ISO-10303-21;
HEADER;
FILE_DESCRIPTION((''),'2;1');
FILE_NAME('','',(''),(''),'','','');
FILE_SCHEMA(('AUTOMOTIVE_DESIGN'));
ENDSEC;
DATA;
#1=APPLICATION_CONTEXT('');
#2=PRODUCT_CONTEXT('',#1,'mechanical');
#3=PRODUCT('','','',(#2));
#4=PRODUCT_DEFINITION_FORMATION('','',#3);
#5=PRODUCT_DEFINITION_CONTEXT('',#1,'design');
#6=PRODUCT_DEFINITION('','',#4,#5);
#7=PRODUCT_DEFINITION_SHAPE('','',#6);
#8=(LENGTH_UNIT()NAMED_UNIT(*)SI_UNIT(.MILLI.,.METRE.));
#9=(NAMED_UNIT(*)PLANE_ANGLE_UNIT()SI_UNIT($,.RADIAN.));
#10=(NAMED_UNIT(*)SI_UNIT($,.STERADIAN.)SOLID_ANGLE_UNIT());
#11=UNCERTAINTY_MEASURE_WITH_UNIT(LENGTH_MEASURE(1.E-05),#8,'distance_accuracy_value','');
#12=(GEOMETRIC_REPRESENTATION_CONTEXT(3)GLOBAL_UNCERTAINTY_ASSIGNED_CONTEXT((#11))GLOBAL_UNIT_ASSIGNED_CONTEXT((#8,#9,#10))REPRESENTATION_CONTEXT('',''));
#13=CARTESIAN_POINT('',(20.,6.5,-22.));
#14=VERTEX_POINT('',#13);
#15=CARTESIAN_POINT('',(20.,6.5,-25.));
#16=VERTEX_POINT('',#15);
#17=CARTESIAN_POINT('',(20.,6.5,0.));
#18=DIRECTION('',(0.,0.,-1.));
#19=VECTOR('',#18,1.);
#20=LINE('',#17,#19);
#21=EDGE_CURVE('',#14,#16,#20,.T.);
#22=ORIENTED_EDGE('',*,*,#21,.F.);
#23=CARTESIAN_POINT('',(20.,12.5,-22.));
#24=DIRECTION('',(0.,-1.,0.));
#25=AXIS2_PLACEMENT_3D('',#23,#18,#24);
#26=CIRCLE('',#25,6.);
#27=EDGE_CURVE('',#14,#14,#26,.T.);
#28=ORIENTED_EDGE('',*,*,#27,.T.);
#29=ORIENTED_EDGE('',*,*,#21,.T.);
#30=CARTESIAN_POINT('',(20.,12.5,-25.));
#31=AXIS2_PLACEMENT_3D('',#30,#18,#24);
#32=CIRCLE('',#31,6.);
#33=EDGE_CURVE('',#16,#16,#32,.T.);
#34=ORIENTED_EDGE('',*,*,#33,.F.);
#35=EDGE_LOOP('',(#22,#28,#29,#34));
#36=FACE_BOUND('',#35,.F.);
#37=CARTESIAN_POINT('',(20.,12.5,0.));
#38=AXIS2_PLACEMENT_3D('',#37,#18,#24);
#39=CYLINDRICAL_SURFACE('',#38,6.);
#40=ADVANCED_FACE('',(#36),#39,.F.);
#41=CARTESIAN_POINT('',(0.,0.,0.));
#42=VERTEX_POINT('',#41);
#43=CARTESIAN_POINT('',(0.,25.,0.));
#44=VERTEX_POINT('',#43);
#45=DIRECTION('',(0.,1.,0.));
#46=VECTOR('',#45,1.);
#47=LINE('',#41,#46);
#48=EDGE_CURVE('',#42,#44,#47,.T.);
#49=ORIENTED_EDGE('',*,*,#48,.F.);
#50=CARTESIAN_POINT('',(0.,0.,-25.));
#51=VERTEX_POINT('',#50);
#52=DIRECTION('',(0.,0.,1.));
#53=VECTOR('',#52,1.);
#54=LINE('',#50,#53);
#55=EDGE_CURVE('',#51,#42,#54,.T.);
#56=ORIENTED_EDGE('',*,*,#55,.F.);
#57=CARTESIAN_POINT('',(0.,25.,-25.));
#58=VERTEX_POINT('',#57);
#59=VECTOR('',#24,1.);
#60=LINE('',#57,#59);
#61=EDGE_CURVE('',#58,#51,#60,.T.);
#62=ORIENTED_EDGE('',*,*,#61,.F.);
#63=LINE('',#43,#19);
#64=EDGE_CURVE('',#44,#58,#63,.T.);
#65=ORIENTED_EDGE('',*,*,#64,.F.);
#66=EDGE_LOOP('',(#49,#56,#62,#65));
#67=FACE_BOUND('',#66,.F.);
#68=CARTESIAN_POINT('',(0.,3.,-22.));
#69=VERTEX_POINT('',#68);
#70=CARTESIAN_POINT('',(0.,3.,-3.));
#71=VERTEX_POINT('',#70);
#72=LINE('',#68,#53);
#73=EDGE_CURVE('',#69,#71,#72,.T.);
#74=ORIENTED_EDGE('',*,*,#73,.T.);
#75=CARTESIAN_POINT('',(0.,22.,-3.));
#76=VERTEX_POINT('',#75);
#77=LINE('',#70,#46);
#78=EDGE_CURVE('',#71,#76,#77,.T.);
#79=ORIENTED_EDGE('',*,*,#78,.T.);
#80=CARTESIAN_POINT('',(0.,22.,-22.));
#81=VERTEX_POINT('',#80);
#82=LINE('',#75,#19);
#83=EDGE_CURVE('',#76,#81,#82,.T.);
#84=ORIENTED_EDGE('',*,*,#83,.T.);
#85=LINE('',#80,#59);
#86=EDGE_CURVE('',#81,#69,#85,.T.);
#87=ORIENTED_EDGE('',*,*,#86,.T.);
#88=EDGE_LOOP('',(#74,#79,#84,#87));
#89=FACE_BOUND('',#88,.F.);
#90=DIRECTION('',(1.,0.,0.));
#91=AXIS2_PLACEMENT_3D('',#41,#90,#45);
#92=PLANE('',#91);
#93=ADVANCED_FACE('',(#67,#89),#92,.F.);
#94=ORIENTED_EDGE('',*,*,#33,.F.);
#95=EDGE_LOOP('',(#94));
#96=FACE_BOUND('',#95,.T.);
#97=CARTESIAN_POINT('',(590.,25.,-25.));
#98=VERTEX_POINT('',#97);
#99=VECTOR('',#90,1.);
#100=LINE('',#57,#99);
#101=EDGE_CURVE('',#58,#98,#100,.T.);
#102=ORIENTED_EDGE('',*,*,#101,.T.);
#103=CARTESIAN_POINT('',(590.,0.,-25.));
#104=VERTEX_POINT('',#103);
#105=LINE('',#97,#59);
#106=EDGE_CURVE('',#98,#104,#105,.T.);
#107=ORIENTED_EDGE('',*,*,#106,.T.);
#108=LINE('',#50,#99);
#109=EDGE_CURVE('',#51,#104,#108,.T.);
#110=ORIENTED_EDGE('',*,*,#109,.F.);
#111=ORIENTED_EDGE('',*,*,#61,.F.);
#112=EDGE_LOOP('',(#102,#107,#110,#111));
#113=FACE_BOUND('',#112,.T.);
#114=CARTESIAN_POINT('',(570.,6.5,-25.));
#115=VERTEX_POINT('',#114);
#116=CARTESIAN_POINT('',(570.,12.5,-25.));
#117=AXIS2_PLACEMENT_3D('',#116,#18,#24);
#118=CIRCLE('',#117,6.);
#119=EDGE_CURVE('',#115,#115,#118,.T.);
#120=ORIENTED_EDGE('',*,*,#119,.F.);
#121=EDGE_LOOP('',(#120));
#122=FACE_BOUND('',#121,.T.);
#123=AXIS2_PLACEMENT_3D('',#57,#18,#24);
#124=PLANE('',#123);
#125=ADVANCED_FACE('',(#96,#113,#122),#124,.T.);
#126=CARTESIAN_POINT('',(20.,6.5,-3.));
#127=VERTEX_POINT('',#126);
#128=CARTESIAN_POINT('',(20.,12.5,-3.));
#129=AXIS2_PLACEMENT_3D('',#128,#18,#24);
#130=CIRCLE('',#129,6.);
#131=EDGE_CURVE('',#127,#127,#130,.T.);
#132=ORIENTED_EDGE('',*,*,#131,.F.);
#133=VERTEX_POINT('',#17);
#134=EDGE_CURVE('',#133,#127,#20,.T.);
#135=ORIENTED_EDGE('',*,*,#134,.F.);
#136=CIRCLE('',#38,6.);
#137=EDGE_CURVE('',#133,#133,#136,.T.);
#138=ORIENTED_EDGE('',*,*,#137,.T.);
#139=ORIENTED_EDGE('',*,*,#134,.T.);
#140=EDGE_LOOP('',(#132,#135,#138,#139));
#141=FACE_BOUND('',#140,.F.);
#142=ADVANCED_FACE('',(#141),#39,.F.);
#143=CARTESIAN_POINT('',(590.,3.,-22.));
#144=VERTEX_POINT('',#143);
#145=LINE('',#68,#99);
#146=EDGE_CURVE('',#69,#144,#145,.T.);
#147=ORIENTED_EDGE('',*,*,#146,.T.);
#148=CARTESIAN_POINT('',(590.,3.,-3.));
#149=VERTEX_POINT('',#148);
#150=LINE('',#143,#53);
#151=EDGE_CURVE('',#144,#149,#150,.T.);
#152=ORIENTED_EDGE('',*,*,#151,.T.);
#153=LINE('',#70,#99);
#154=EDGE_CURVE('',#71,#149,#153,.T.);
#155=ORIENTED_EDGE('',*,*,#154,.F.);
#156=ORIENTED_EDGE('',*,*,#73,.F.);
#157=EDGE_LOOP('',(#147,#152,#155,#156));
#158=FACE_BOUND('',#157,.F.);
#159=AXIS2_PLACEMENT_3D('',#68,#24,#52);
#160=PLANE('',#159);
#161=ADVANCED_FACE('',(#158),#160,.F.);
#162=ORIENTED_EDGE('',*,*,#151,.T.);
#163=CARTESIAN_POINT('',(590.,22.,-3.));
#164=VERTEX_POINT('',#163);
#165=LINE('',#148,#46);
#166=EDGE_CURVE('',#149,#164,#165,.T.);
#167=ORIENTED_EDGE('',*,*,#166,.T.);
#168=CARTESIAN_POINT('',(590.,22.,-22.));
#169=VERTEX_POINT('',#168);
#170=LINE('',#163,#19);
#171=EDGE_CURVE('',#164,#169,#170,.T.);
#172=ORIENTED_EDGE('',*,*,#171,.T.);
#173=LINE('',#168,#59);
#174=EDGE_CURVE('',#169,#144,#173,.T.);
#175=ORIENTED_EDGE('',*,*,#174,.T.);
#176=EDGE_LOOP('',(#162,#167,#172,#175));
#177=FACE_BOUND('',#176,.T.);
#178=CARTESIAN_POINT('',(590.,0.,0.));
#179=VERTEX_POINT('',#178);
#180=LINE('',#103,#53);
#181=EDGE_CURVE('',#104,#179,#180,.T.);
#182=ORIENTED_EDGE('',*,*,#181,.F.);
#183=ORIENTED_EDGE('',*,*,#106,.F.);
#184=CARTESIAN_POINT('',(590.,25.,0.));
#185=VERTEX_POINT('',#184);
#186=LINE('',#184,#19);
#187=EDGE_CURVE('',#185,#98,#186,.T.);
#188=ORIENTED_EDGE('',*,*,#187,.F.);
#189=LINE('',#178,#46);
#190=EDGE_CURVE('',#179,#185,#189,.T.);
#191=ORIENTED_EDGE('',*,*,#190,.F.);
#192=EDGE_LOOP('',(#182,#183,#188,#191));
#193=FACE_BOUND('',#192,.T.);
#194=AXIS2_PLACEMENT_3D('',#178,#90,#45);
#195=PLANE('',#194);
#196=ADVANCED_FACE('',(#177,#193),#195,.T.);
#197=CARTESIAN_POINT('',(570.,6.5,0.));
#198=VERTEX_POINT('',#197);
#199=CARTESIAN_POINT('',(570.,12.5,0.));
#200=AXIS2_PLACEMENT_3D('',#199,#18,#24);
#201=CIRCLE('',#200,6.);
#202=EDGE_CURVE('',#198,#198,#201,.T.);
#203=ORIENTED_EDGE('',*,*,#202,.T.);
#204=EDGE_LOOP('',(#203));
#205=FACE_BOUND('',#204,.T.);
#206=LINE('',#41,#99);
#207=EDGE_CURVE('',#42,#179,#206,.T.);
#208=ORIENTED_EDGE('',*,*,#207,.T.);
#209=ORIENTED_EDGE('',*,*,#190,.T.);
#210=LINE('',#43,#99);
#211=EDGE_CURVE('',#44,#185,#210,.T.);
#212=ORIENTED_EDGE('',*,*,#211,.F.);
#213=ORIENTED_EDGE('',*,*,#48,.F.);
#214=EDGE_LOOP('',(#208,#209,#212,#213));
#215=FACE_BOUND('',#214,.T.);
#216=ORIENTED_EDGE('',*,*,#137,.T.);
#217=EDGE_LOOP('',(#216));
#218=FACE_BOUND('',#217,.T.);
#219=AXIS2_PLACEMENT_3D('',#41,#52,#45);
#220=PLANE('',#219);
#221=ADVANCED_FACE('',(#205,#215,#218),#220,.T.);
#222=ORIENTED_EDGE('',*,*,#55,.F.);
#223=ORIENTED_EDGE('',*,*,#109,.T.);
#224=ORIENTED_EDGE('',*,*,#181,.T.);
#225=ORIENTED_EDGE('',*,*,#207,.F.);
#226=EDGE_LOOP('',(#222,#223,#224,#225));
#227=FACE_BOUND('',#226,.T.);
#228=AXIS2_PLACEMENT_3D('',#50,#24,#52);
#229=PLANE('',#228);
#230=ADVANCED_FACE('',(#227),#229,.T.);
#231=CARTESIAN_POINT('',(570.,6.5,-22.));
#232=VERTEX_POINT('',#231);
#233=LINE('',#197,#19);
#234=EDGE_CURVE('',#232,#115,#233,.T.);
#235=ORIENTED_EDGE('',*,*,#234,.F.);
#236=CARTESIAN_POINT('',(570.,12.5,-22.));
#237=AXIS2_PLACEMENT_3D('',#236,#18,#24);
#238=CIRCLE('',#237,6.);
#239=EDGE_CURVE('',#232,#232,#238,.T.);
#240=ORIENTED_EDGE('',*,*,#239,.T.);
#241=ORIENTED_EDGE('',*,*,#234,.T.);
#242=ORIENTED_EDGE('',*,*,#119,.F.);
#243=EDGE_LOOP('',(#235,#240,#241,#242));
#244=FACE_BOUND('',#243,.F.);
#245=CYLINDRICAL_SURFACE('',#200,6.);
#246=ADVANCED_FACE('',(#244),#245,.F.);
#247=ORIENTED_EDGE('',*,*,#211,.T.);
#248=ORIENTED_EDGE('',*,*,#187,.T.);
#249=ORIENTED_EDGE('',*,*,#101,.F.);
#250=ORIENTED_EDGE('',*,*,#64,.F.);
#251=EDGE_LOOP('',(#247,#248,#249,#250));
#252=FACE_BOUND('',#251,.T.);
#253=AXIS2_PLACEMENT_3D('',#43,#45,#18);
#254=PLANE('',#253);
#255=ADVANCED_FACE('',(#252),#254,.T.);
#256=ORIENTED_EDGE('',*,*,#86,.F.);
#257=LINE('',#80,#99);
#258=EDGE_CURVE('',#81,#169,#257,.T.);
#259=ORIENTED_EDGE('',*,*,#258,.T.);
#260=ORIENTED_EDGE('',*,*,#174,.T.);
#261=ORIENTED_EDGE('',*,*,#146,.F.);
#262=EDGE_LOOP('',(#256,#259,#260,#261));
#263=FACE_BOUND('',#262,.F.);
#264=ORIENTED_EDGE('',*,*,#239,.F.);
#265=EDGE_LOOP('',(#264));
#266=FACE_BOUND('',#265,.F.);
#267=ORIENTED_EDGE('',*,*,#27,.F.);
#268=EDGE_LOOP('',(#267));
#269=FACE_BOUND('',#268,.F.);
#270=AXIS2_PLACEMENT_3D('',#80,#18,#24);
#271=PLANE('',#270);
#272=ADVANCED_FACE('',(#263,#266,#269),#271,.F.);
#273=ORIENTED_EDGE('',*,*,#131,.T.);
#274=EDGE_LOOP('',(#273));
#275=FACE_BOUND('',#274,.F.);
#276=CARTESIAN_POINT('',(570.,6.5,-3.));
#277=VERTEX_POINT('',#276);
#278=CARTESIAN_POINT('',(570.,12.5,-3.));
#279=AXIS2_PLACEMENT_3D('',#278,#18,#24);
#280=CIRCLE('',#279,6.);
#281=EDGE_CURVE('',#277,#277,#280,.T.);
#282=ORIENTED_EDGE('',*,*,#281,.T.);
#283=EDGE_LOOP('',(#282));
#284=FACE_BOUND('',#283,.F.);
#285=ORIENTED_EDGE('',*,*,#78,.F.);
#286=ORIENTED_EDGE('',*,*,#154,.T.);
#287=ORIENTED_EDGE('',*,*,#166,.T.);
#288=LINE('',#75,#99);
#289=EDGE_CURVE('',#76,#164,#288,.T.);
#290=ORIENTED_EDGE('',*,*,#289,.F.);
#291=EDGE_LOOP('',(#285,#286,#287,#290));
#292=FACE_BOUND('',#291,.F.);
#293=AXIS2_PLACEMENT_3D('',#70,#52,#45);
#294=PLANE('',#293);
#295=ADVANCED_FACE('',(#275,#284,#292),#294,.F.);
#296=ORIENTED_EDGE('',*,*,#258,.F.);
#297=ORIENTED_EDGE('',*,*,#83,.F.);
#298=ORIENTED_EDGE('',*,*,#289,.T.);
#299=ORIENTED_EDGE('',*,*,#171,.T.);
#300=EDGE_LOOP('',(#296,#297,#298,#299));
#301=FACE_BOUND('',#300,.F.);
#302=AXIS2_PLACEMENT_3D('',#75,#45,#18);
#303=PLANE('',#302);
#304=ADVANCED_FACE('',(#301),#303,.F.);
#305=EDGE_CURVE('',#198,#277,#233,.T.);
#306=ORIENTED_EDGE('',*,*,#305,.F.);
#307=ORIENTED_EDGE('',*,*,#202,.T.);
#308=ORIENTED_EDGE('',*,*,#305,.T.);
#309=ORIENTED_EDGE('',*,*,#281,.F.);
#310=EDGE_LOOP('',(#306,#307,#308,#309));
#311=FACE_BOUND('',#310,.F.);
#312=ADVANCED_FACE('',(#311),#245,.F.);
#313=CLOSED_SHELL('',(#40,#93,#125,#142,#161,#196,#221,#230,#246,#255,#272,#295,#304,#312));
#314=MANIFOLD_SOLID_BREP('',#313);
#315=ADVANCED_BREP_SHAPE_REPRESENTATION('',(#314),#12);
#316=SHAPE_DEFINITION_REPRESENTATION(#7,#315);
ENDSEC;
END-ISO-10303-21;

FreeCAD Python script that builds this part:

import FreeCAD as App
import Part
import Sketcher
from FreeCAD import Vector


def add_polygon(sketch, points):
    """Adds a closed chain of lines whose ends are joined by coincident constraints."""
    first, n = sketch.GeometryCount, len(points)
    for a, b in zip(points, points[1:] + points[:1]):
        sketch.addGeometry(Part.LineSegment(App.Vector(*a, 0), App.Vector(*b, 0)), False)
    for i in range(n):
        sketch.addConstraint(Sketcher.Constraint("Coincident", first + i, 2, first + (i + 1) % n, 1))

doc = App.newDocument("Part")
body = doc.addObject("PartDesign::Body", "Body")

# Sketch on YZ plane
sketch1 = doc.addObject("Sketcher::SketchObject", "Sketch")
body.addObject(sketch1)
sketch1.AttachmentSupport = (doc.YZ_Plane, [""])
sketch1.MapMode = "FlatFace"
add_polygon(sketch1, [(25, 0), (0, 0), (0, -25), (25, -25)])  # lines 0-3
add_polygon(sketch1, [(3, -22), (3, -3), (22, -3), (22, -22)])  # lines 4-7
sketch1.addConstraint(Sketcher.Constraint("Horizontal", 0))
sketch1.addConstraint(Sketcher.Constraint("Vertical", 1))
sketch1.addConstraint(Sketcher.Constraint("Horizontal", 2))
sketch1.addConstraint(Sketcher.Constraint("Vertical", 3))
sketch1.addConstraint(Sketcher.Constraint("Vertical", 4))
sketch1.addConstraint(Sketcher.Constraint("Horizontal", 5))
sketch1.addConstraint(Sketcher.Constraint("Vertical", 6))
sketch1.addConstraint(Sketcher.Constraint("Horizontal", 7))
sketch1.addConstraint(Sketcher.Constraint("Coincident", 0, 2, -1, 1))
sketch1.addConstraint(Sketcher.Constraint("Equal", 2, 1))
sketch1.addConstraint(Sketcher.Constraint("Equal", 7, 4))
sketch1.addConstraint(Sketcher.Constraint("DistanceX", 0, 2, 0, 1, 25.0))
sketch1.addConstraint(Sketcher.Constraint("DistanceX", -1, 1, 4, 2, 3.0))
sketch1.addConstraint(Sketcher.Constraint("DistanceY", 4, 2, -1, 1, 3.0))
sketch1.addConstraint(Sketcher.Constraint("DistanceX", 5, 2, 3, 2, 3.0))
pad1 = doc.addObject("PartDesign::Pad", "Pad")
body.addObject(pad1)
pad1.Profile = sketch1
pad1.Length = 590

# Sketch on XY plane
sketch2 = doc.addObject("Sketcher::SketchObject", "Sketch001")
body.addObject(sketch2)
sketch2.AttachmentSupport = (doc.XY_Plane, [""])
sketch2.MapMode = "FlatFace"
sketch2.addGeometry(Part.Circle(Vector(20, 12, 0), Vector(0, 0, 1), 6), False)
sketch2.addGeometry(Part.Circle(Vector(570, 12, 0), Vector(0, 0, 1), 6), False)
sketch2.addConstraint(Sketcher.Constraint("Equal", 0, 1))
sketch2.addConstraint(Sketcher.Constraint("Horizontal", 0, 3, 1, 3))
sketch2.addConstraint(Sketcher.Constraint("Diameter", 0, 12.0))
sketch2.addConstraint(Sketcher.Constraint("DistanceX", -1, 1, 0, 3, 20.0))
sketch2.addConstraint(Sketcher.Constraint("DistanceX", -1, 1, 1, 3, 570.0))
sketch2.addConstraint(Sketcher.Constraint("DistanceY", -1, 1, 0, 3, 12.5))
doc.recompute()
hole = doc.addObject("PartDesign::Hole", "Hole")
body.addObject(hole)
hole.Profile = sketch2
hole.ThreadType = "None"
hole.Diameter = 12
hole.DepthType = "ThroughAll"

doc.recompute()
